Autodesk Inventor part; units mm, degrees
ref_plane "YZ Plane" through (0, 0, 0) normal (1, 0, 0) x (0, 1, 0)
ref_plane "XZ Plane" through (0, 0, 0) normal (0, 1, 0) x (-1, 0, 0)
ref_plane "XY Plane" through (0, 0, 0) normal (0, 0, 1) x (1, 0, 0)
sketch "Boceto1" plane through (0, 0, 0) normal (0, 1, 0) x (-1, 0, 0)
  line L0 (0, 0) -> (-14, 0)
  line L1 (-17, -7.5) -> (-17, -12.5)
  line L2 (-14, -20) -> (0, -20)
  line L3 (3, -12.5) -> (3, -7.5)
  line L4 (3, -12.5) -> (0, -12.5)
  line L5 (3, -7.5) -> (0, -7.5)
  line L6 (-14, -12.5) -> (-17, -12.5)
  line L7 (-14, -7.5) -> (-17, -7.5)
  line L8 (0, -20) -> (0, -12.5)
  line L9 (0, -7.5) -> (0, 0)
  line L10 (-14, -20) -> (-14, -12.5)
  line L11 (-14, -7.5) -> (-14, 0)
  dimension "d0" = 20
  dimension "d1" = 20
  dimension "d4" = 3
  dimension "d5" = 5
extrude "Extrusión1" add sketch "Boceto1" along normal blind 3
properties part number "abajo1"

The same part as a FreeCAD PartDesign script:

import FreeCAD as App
import Part
import Sketcher
Q = App.Units.Quantity

doc = App.newDocument("Part")
body = doc.addObject("PartDesign::Body", "Body")

sketch1 = body.newObject("Sketcher::SketchObject", "Sketch")
sketch1.AttachmentSupport = (doc.getObject("XZ_Plane"), [""])
sketch1.MapMode = "FlatFace"
sketch1.addGeometry([
    Part.LineSegment(App.Vector(0, -7.5, 0), App.Vector(0, 0, 0)),
    Part.LineSegment(App.Vector(0, 0, 0), App.Vector(14, 0, 0)),
    Part.LineSegment(App.Vector(14, 0, 0), App.Vector(14, -7.5, 0)),
    Part.LineSegment(App.Vector(14, -7.5, 0), App.Vector(17, -7.5, 0)),
    Part.LineSegment(App.Vector(17, -7.5, 0), App.Vector(17, -12.5, 0)),
    Part.LineSegment(App.Vector(17, -12.5, 0), App.Vector(14, -12.5, 0)),
    Part.LineSegment(App.Vector(14, -12.5, 0), App.Vector(14, -20, 0)),
    Part.LineSegment(App.Vector(14, -20, 0), App.Vector(0, -20, 0)),
    Part.LineSegment(App.Vector(0, -20, 0), App.Vector(0, -12.5, 0)),
    Part.LineSegment(App.Vector(0, -12.5, 0), App.Vector(-3, -12.5, 0)),
    Part.LineSegment(App.Vector(-3, -12.5, 0), App.Vector(-3, -7.5, 0)),
    Part.LineSegment(App.Vector(-3, -7.5, 0), App.Vector(0, -7.5, 0)),
], False)
sketch1.addConstraint([
    Sketcher.Constraint("Coincident", 0, 2, 1, 1),
    Sketcher.Constraint("Coincident", 1, 2, 2, 1),
    Sketcher.Constraint("Coincident", 2, 2, 3, 1),
    Sketcher.Constraint("Coincident", 3, 2, 4, 1),
    Sketcher.Constraint("Coincident", 4, 2, 5, 1),
    Sketcher.Constraint("Coincident", 5, 2, 6, 1),
    Sketcher.Constraint("Coincident", 6, 2, 7, 1),
    Sketcher.Constraint("Coincident", 7, 2, 8, 1),
    Sketcher.Constraint("Coincident", 8, 2, 9, 1),
    Sketcher.Constraint("Coincident", 9, 2, 10, 1),
    Sketcher.Constraint("Coincident", 10, 2, 11, 1),
    Sketcher.Constraint("Coincident", 11, 2, 0, 1),
    Sketcher.Constraint("Vertical", 0),
    Sketcher.Constraint("Horizontal", 1),
    Sketcher.Constraint("Vertical", 2),
    Sketcher.Constraint("Horizontal", 3),
    Sketcher.Constraint("Vertical", 4),
    Sketcher.Constraint("Horizontal", 5),
    Sketcher.Constraint("Vertical", 6),
    Sketcher.Constraint("Horizontal", 7),
    Sketcher.Constraint("Vertical", 8),
    Sketcher.Constraint("Horizontal", 9),
    Sketcher.Constraint("Vertical", 10),
    Sketcher.Constraint("Horizontal", 11),
    Sketcher.Constraint("Coincident", 0, 2, -1, 1),
    Sketcher.Constraint("PointOnObject", 7, 2, -2),
    Sketcher.Constraint("Horizontal", 5, 2, 8, 2),
    Sketcher.Constraint("Horizontal", 3, 2, 10, 2),
    Sketcher.Constraint("Vertical", 2, 2, 5, 2),
    Sketcher.Constraint("Equal", 5, 9),
    Sketcher.Constraint("Equal", 2, 6),
    Sketcher.Constraint("DistanceX", 3, 1, 3, 2, Q("3 mm")),
    Sketcher.Constraint("DistanceY", 4, 2, 4, 1, Q("5 mm")),
    Sketcher.Constraint("DistanceY", 6, 2, -1, 1, Q("20 mm")),
    Sketcher.Constraint("DistanceX", 1, 1, 1, 2, Q("14 mm")),
])
pad1 = body.newObject("PartDesign::Pad", "Pad")
pad1.Profile = sketch1
pad1.Length = 3
pad1.Reversed = True

doc.recompute()
